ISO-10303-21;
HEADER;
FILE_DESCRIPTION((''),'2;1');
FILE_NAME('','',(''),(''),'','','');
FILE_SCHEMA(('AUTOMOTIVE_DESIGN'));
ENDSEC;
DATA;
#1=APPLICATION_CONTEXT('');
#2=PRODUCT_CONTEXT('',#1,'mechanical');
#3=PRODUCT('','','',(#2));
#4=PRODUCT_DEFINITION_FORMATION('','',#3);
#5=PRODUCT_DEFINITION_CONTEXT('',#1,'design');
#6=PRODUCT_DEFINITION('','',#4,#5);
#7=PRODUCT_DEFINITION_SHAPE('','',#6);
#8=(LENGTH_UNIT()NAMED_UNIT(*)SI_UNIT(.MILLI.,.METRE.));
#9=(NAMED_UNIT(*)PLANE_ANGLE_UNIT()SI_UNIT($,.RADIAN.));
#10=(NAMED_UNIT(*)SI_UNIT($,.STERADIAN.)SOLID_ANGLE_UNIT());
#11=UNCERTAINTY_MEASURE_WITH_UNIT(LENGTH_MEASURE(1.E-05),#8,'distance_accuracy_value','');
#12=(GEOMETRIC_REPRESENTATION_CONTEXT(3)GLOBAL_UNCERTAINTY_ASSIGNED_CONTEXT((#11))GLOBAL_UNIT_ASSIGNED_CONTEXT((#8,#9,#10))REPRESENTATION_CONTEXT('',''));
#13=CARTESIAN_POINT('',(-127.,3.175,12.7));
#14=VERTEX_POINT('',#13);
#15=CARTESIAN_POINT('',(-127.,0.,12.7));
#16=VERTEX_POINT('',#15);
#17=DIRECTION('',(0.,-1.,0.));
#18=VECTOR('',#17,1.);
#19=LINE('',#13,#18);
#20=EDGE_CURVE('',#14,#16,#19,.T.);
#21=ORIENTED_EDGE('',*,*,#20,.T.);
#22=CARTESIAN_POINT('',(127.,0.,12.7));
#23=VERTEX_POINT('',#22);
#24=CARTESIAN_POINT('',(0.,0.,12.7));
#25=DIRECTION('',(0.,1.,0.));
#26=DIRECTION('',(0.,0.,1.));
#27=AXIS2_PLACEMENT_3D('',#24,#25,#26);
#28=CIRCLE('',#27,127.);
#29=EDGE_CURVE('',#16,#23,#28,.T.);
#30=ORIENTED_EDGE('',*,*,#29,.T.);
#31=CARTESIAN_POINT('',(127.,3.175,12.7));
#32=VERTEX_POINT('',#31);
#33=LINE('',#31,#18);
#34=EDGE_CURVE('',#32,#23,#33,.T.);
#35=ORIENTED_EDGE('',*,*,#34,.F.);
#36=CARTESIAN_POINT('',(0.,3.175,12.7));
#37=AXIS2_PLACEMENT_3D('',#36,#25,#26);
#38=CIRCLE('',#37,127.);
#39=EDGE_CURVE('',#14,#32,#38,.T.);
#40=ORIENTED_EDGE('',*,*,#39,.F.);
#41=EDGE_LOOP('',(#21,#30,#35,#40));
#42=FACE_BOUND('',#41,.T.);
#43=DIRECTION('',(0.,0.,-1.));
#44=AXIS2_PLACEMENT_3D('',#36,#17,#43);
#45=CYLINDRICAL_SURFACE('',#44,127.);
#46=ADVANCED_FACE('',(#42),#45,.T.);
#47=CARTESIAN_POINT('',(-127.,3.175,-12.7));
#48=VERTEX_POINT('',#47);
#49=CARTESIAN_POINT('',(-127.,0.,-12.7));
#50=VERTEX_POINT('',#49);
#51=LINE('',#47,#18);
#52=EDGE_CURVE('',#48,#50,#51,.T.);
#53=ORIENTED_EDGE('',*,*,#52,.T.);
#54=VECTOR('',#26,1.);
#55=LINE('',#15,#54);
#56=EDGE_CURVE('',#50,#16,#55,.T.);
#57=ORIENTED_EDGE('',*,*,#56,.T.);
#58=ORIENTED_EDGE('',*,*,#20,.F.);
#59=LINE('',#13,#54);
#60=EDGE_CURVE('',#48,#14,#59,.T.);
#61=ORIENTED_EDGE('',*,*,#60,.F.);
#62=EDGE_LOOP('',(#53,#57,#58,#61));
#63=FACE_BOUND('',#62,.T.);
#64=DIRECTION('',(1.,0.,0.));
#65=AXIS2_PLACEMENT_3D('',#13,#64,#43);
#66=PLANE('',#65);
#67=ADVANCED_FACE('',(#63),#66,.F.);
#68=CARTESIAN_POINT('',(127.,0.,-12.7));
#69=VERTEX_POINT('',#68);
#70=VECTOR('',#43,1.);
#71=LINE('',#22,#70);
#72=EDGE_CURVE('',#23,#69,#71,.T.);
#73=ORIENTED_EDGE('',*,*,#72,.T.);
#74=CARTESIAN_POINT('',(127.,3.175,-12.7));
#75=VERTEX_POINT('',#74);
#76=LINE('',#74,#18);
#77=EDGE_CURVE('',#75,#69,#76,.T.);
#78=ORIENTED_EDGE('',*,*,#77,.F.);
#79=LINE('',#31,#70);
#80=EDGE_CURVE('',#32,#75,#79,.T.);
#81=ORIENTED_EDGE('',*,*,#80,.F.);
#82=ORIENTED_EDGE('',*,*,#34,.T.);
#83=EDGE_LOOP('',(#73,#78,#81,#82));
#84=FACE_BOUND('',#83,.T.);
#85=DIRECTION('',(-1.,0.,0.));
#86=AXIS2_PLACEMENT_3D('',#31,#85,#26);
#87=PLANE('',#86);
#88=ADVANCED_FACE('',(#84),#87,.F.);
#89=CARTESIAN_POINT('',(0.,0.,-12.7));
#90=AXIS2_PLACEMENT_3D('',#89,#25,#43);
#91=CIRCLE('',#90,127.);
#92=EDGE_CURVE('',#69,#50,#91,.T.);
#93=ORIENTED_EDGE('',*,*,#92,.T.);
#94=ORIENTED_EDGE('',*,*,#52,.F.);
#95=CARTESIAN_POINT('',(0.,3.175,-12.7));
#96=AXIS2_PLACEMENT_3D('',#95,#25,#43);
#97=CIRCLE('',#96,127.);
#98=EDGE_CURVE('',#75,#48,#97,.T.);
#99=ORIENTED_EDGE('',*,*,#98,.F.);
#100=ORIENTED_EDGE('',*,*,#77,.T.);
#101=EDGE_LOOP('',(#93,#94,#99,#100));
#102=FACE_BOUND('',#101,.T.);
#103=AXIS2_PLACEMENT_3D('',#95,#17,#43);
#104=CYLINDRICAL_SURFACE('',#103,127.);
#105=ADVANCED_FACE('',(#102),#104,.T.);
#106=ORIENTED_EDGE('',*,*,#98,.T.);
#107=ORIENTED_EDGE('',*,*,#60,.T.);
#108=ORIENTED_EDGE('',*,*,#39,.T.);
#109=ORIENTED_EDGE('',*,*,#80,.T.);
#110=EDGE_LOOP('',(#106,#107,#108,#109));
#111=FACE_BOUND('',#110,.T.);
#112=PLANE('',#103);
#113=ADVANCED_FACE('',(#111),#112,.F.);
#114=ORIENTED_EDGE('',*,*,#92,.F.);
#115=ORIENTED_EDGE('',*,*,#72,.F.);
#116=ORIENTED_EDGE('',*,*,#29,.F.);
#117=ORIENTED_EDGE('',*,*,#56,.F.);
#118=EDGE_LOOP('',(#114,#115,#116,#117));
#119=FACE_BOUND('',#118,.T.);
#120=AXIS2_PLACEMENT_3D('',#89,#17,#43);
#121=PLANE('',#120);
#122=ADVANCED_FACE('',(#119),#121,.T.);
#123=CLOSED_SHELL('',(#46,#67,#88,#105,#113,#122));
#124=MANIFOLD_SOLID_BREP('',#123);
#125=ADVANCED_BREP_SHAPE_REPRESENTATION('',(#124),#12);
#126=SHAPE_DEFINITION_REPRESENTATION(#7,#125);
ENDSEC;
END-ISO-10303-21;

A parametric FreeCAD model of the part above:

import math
import FreeCAD as App
import Part
import Sketcher
from FreeCAD import Vector
Q = App.Units.Quantity

doc = App.newDocument("Part")
body = doc.addObject("PartDesign::Body", "Body")

sketch1 = body.newObject("Sketcher::SketchObject", "Sketch")
sketch1.AttachmentSupport = (doc.getObject("XZ_Plane"), [""])
sketch1.MapMode = "FlatFace"
sketch1.addGeometry([
    Part.LineSegment(Vector(127, 13, 0), Vector(127, -13, 0)),
    Part.ArcOfCircle(Part.Circle(Vector(0, -13, 0), Vector(0, 0, 1), 127), math.radians(180), math.radians(360)),
    Part.LineSegment(Vector(-127, -13, 0), Vector(-127, 13, 0)),
    Part.ArcOfCircle(Part.Circle(Vector(0, 13, 0), Vector(0, 0, 1), 127), math.radians(0), math.radians(180)),
], False)
sketch1.addConstraint([
    Sketcher.Constraint("Tangent", 0, 2, 1, 2),
    Sketcher.Constraint("Tangent", 1, 1, 2, 1),
    Sketcher.Constraint("Tangent", 2, 2, 3, 2),
    Sketcher.Constraint("Tangent", 3, 1, 0, 1),
    Sketcher.Constraint("Vertical", 0),
    Sketcher.Constraint("Vertical", 2),
    Sketcher.Constraint("Symmetric", 1, 3, 3, 3, -1, 1),
    Sketcher.Constraint("Radius", 1, Q("5 in")),
    Sketcher.Constraint("DistanceY", 0, 2, 0, 1, Q("1 in")),
])
pad1 = body.newObject("PartDesign::Pad", "Pad")
pad1.Profile = sketch1
pad1.Length = Q("0.125 in")
pad1.Reversed = True

doc.recompute()
